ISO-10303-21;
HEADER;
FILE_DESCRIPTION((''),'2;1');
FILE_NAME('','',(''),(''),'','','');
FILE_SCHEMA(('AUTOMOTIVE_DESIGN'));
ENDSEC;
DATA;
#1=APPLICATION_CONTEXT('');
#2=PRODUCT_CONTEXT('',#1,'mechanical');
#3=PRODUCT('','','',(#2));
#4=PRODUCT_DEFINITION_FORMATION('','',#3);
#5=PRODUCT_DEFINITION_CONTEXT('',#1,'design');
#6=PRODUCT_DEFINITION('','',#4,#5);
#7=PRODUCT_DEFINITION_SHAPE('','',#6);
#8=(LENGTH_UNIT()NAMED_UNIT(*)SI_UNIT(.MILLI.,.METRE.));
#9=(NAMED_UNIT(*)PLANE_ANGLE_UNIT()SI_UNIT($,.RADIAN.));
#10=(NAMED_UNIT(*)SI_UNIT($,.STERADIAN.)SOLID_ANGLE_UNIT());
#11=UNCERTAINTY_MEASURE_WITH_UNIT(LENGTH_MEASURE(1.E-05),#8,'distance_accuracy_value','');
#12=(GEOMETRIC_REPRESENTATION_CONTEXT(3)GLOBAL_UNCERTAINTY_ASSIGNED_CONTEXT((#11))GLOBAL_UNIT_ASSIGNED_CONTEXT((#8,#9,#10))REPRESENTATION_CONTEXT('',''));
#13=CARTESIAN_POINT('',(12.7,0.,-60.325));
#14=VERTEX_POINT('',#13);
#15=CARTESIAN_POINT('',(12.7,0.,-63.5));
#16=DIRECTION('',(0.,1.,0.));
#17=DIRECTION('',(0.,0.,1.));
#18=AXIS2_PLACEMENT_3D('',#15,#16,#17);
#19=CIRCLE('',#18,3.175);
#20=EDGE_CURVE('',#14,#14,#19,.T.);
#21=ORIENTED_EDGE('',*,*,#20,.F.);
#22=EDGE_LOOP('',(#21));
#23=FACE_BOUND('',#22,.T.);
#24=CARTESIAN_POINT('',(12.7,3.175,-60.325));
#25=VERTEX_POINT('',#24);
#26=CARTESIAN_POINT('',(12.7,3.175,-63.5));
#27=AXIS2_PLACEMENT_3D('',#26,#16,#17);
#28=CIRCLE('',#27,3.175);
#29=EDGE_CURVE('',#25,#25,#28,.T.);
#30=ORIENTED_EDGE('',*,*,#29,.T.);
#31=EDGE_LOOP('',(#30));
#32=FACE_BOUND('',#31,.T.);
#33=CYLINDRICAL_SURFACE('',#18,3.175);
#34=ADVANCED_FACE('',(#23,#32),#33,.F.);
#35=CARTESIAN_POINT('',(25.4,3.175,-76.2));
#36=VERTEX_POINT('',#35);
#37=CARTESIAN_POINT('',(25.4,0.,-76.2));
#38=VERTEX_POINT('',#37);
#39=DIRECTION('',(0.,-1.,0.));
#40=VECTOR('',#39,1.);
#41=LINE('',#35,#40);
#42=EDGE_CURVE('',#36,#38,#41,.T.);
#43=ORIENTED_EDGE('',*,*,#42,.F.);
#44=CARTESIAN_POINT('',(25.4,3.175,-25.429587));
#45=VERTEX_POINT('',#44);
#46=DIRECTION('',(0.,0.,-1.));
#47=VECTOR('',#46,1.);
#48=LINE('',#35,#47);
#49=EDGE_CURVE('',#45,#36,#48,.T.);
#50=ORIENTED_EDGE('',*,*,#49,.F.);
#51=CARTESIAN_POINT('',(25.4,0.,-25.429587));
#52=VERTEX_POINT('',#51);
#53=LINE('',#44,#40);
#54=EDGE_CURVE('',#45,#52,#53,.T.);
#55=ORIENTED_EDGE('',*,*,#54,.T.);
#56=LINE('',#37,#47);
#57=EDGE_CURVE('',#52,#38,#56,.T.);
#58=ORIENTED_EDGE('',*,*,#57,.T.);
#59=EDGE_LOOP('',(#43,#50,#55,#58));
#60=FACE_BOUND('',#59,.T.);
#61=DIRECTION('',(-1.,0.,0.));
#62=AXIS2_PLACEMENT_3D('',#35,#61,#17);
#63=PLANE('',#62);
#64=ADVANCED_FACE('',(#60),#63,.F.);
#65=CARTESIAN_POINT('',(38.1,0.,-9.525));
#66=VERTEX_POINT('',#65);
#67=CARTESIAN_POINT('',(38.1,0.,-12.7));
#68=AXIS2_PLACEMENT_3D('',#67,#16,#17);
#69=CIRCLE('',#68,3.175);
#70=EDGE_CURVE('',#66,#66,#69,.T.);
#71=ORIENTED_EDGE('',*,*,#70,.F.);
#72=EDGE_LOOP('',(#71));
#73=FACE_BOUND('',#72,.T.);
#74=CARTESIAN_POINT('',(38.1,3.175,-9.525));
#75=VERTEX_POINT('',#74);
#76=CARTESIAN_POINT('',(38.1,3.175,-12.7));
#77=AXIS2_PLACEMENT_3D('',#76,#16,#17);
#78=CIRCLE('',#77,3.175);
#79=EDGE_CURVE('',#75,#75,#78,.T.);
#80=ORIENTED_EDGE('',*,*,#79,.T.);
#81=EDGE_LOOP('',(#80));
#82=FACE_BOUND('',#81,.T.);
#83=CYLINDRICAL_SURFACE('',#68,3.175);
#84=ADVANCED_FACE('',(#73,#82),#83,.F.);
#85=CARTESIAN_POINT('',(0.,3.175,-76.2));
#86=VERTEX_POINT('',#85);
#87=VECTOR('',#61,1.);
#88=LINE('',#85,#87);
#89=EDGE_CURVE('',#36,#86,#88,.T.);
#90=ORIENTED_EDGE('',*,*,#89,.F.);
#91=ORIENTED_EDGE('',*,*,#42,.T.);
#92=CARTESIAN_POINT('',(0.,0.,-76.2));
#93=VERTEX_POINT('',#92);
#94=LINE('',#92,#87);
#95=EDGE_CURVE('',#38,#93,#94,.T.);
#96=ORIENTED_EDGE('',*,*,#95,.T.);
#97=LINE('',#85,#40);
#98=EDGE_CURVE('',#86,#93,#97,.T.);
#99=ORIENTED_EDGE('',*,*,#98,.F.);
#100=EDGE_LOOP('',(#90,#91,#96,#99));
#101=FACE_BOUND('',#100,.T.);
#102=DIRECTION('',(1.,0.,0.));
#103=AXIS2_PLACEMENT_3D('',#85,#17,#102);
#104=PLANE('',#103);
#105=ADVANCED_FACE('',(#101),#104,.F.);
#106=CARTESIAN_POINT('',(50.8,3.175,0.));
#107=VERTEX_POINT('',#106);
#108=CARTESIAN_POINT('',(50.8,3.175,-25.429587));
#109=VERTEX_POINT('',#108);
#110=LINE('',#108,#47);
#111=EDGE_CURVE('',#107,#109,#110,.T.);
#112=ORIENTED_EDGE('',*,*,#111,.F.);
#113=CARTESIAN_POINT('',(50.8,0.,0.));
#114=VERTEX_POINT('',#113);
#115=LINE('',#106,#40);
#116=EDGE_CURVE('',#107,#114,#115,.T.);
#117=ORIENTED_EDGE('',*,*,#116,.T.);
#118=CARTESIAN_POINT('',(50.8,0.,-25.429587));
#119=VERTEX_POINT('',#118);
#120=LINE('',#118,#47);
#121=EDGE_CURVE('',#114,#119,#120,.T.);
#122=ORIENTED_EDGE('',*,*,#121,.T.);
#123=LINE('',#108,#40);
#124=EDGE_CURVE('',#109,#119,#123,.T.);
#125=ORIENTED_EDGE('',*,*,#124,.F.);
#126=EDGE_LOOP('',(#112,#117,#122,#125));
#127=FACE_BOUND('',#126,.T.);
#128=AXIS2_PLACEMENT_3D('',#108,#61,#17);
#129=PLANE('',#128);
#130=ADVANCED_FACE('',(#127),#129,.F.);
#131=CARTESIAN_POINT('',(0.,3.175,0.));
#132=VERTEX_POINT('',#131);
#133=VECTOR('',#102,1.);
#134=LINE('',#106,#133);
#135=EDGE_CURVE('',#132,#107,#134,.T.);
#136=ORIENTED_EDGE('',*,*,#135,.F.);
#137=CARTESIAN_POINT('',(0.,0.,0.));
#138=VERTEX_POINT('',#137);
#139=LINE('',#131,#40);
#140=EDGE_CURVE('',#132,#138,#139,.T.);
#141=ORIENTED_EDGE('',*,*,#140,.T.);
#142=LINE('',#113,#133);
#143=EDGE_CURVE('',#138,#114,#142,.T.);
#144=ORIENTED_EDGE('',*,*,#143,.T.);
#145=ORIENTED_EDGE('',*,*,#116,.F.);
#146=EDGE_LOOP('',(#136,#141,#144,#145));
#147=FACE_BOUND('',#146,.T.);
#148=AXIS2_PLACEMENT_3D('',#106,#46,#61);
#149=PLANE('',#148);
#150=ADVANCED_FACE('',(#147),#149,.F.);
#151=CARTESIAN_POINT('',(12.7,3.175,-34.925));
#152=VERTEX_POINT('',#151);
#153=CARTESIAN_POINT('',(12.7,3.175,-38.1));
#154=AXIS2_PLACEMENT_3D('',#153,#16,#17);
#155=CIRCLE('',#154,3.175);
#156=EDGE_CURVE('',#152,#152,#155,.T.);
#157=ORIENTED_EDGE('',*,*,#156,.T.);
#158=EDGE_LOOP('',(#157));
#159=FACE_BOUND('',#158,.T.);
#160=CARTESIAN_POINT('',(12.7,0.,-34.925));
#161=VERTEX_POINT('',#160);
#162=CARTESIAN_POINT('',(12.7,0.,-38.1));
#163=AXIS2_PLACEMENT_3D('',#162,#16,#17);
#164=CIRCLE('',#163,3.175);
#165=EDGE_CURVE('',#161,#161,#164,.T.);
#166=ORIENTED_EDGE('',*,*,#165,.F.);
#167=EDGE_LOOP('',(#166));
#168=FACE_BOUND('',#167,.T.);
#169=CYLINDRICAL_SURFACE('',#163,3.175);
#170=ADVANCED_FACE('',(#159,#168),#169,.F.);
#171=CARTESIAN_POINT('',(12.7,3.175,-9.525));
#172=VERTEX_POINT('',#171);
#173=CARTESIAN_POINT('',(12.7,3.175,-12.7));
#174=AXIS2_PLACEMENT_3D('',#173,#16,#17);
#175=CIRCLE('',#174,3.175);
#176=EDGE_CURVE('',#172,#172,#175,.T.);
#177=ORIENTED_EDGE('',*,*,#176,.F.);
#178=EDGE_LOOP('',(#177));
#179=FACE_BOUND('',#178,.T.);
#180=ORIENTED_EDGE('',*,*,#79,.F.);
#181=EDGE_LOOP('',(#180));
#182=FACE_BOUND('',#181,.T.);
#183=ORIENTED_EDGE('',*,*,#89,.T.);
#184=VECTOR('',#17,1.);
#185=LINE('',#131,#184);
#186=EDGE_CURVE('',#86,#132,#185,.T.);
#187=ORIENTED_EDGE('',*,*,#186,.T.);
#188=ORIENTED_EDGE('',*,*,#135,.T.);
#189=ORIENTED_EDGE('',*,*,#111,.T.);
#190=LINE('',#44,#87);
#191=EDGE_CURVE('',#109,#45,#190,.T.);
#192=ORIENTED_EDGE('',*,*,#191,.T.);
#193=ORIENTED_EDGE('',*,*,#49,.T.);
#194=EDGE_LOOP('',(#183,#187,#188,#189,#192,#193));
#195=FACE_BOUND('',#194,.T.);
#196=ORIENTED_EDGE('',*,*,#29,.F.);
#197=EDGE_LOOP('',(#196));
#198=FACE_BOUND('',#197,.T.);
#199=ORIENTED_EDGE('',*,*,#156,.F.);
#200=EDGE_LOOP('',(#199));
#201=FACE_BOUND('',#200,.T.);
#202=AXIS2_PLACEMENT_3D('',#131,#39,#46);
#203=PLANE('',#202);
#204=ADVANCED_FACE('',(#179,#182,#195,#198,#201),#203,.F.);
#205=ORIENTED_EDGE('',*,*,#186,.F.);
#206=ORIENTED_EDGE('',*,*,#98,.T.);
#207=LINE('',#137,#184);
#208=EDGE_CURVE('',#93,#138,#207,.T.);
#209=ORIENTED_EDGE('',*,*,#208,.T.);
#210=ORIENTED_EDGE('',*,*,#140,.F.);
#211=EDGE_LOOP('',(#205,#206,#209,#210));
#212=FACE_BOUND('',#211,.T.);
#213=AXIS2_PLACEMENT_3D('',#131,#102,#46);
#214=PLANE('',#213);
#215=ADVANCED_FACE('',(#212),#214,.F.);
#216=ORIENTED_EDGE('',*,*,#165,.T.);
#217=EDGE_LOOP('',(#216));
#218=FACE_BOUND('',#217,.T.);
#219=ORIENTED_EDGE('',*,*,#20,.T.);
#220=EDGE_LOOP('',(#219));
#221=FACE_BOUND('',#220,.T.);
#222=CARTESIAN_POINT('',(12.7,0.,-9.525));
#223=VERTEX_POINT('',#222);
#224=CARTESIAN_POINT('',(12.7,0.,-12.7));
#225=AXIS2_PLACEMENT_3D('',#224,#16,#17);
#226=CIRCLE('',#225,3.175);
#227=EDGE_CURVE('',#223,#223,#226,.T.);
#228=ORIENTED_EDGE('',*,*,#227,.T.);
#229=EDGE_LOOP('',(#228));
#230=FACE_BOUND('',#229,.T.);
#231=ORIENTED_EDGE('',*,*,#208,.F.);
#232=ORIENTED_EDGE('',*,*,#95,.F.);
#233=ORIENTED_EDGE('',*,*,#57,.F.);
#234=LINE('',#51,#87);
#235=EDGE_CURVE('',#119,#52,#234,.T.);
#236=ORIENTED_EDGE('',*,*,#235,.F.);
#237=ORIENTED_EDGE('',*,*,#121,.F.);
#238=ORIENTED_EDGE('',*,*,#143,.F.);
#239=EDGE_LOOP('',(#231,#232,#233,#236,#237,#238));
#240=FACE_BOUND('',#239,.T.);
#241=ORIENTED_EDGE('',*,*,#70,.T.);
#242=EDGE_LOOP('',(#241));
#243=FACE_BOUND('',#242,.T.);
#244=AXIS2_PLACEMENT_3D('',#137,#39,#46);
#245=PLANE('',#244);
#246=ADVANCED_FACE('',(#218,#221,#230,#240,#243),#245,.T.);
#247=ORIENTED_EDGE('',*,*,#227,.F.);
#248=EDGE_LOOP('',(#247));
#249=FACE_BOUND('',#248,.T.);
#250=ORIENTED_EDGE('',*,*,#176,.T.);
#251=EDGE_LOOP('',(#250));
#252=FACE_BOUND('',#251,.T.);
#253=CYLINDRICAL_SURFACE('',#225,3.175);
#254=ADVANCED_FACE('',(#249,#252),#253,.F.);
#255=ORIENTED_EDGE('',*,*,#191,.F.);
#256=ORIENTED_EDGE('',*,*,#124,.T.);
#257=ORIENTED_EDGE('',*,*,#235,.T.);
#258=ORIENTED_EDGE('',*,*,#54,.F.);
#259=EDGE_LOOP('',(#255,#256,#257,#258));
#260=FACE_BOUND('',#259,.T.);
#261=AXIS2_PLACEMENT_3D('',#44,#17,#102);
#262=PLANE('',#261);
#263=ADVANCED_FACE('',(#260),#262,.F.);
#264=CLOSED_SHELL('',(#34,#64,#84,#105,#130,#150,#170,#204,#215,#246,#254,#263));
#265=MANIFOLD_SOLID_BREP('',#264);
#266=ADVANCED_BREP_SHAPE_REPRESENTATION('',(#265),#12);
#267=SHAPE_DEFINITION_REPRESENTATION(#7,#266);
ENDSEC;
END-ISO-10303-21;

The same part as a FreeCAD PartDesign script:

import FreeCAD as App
import Part
import Sketcher

V = App.Vector
Q = App.Units.Quantity

doc = App.newDocument("Part")
body = doc.addObject("PartDesign::Body", "Body")

# Sketch on XZ plane
sketch1 = doc.addObject("Sketcher::SketchObject", "Sketch")
body.addObject(sketch1)
sketch1.AttachmentSupport = (doc.XZ_Plane, [""])
sketch1.MapMode = "FlatFace"
sketch1.addGeometry([
    Part.LineSegment(V(0, -76, 0), V(0, 0, 0)),  # 0
    Part.LineSegment(V(0, 0, 0), V(51, 0, 0)),  # 1
    Part.LineSegment(V(51, 0, 0), V(51, -25, 0)),  # 2
    Part.LineSegment(V(51, -25, 0), V(25, -25, 0)),  # 3
    Part.LineSegment(V(25, -25, 0), V(25, -76, 0)),  # 4
    Part.LineSegment(V(25, -76, 0), V(0, -76, 0)),  # 5
], False)
sketch1.addConstraint([
    Sketcher.Constraint("Coincident", 0, 2, 1, 1),
    Sketcher.Constraint("Coincident", 1, 2, 2, 1),
    Sketcher.Constraint("Coincident", 2, 2, 3, 1),
    Sketcher.Constraint("Coincident", 3, 2, 4, 1),
    Sketcher.Constraint("Coincident", 4, 2, 5, 1),
    Sketcher.Constraint("Coincident", 5, 2, 0, 1),
    Sketcher.Constraint("Vertical", 0),
    Sketcher.Constraint("Horizontal", 1),
    Sketcher.Constraint("Vertical", 2),
    Sketcher.Constraint("Horizontal", 3),
    Sketcher.Constraint("Vertical", 4),
    Sketcher.Constraint("Horizontal", 5),
    Sketcher.Constraint("Coincident", 0, 2, -1, 1),
    Sketcher.Constraint("Equal", 3, 5),
    Sketcher.Constraint("DistanceX", 1, 1, 1, 2, Q("2 in")),
    Sketcher.Constraint("DistanceY", 0, 1, 0, 2, Q("3 in")),
    Sketcher.Constraint("DistanceY", 2, 2, 2, 1, 25.429587),
])
pad1 = doc.addObject("PartDesign::Pad", "Pad")
body.addObject(pad1)
pad1.Profile = sketch1
pad1.Length = Q("0.125 in")
pad1.Reversed = True

# Sketch on XZ plane
sketch2 = doc.addObject("Sketcher::SketchObject", "Sketch001")
body.addObject(sketch2)
sketch2.AttachmentSupport = (doc.XZ_Plane, [""])
sketch2.MapMode = "FlatFace"
sketch2.AttachmentOffset = App.Placement(V(0, 0, -0.125 * 25.4), App.Rotation())
sketch2.addGeometry(Part.Circle(V(12.7, -12.7, 0), V(0, 0, 1), 3.2), False)
sketch2.addConstraint([
    Sketcher.Constraint("Diameter", 0, Q("0.25 in")),
    Sketcher.Constraint("DistanceX", -1, 1, 0, 3, Q("0.5 in")),
    Sketcher.Constraint("DistanceY", 0, 3, -1, 1, Q("0.5 in")),
])
pocket1 = doc.addObject("PartDesign::Pocket", "Pocket")
body.addObject(pocket1)
pocket1.Profile = sketch2
pocket1.Length = Q("0.125 in")
pocket1.Reversed = True
doc.recompute()

linearpattern = doc.addObject("PartDesign::LinearPattern", "LinearPattern")
body.addObject(linearpattern)
linearpattern.Originals = [pocket1]
linearpattern.Direction = (doc.Z_Axis, [""])
linearpattern.Mode = "offset"
linearpattern.Offset = Q("1 in")
linearpattern.Occurrences = 3
linearpattern.Reversed = True
body.Tip = linearpattern
doc.recompute()

linearpattern2 = doc.addObject("PartDesign::LinearPattern", "LinearPattern001")
body.addObject(linearpattern2)
linearpattern2.Originals = [pocket1]
linearpattern2.Direction = (doc.X_Axis, [""])
linearpattern2.Mode = "offset"
linearpattern2.Offset = Q("1 in")
linearpattern2.Occurrences = 2
body.Tip = linearpattern2

doc.recompute()
